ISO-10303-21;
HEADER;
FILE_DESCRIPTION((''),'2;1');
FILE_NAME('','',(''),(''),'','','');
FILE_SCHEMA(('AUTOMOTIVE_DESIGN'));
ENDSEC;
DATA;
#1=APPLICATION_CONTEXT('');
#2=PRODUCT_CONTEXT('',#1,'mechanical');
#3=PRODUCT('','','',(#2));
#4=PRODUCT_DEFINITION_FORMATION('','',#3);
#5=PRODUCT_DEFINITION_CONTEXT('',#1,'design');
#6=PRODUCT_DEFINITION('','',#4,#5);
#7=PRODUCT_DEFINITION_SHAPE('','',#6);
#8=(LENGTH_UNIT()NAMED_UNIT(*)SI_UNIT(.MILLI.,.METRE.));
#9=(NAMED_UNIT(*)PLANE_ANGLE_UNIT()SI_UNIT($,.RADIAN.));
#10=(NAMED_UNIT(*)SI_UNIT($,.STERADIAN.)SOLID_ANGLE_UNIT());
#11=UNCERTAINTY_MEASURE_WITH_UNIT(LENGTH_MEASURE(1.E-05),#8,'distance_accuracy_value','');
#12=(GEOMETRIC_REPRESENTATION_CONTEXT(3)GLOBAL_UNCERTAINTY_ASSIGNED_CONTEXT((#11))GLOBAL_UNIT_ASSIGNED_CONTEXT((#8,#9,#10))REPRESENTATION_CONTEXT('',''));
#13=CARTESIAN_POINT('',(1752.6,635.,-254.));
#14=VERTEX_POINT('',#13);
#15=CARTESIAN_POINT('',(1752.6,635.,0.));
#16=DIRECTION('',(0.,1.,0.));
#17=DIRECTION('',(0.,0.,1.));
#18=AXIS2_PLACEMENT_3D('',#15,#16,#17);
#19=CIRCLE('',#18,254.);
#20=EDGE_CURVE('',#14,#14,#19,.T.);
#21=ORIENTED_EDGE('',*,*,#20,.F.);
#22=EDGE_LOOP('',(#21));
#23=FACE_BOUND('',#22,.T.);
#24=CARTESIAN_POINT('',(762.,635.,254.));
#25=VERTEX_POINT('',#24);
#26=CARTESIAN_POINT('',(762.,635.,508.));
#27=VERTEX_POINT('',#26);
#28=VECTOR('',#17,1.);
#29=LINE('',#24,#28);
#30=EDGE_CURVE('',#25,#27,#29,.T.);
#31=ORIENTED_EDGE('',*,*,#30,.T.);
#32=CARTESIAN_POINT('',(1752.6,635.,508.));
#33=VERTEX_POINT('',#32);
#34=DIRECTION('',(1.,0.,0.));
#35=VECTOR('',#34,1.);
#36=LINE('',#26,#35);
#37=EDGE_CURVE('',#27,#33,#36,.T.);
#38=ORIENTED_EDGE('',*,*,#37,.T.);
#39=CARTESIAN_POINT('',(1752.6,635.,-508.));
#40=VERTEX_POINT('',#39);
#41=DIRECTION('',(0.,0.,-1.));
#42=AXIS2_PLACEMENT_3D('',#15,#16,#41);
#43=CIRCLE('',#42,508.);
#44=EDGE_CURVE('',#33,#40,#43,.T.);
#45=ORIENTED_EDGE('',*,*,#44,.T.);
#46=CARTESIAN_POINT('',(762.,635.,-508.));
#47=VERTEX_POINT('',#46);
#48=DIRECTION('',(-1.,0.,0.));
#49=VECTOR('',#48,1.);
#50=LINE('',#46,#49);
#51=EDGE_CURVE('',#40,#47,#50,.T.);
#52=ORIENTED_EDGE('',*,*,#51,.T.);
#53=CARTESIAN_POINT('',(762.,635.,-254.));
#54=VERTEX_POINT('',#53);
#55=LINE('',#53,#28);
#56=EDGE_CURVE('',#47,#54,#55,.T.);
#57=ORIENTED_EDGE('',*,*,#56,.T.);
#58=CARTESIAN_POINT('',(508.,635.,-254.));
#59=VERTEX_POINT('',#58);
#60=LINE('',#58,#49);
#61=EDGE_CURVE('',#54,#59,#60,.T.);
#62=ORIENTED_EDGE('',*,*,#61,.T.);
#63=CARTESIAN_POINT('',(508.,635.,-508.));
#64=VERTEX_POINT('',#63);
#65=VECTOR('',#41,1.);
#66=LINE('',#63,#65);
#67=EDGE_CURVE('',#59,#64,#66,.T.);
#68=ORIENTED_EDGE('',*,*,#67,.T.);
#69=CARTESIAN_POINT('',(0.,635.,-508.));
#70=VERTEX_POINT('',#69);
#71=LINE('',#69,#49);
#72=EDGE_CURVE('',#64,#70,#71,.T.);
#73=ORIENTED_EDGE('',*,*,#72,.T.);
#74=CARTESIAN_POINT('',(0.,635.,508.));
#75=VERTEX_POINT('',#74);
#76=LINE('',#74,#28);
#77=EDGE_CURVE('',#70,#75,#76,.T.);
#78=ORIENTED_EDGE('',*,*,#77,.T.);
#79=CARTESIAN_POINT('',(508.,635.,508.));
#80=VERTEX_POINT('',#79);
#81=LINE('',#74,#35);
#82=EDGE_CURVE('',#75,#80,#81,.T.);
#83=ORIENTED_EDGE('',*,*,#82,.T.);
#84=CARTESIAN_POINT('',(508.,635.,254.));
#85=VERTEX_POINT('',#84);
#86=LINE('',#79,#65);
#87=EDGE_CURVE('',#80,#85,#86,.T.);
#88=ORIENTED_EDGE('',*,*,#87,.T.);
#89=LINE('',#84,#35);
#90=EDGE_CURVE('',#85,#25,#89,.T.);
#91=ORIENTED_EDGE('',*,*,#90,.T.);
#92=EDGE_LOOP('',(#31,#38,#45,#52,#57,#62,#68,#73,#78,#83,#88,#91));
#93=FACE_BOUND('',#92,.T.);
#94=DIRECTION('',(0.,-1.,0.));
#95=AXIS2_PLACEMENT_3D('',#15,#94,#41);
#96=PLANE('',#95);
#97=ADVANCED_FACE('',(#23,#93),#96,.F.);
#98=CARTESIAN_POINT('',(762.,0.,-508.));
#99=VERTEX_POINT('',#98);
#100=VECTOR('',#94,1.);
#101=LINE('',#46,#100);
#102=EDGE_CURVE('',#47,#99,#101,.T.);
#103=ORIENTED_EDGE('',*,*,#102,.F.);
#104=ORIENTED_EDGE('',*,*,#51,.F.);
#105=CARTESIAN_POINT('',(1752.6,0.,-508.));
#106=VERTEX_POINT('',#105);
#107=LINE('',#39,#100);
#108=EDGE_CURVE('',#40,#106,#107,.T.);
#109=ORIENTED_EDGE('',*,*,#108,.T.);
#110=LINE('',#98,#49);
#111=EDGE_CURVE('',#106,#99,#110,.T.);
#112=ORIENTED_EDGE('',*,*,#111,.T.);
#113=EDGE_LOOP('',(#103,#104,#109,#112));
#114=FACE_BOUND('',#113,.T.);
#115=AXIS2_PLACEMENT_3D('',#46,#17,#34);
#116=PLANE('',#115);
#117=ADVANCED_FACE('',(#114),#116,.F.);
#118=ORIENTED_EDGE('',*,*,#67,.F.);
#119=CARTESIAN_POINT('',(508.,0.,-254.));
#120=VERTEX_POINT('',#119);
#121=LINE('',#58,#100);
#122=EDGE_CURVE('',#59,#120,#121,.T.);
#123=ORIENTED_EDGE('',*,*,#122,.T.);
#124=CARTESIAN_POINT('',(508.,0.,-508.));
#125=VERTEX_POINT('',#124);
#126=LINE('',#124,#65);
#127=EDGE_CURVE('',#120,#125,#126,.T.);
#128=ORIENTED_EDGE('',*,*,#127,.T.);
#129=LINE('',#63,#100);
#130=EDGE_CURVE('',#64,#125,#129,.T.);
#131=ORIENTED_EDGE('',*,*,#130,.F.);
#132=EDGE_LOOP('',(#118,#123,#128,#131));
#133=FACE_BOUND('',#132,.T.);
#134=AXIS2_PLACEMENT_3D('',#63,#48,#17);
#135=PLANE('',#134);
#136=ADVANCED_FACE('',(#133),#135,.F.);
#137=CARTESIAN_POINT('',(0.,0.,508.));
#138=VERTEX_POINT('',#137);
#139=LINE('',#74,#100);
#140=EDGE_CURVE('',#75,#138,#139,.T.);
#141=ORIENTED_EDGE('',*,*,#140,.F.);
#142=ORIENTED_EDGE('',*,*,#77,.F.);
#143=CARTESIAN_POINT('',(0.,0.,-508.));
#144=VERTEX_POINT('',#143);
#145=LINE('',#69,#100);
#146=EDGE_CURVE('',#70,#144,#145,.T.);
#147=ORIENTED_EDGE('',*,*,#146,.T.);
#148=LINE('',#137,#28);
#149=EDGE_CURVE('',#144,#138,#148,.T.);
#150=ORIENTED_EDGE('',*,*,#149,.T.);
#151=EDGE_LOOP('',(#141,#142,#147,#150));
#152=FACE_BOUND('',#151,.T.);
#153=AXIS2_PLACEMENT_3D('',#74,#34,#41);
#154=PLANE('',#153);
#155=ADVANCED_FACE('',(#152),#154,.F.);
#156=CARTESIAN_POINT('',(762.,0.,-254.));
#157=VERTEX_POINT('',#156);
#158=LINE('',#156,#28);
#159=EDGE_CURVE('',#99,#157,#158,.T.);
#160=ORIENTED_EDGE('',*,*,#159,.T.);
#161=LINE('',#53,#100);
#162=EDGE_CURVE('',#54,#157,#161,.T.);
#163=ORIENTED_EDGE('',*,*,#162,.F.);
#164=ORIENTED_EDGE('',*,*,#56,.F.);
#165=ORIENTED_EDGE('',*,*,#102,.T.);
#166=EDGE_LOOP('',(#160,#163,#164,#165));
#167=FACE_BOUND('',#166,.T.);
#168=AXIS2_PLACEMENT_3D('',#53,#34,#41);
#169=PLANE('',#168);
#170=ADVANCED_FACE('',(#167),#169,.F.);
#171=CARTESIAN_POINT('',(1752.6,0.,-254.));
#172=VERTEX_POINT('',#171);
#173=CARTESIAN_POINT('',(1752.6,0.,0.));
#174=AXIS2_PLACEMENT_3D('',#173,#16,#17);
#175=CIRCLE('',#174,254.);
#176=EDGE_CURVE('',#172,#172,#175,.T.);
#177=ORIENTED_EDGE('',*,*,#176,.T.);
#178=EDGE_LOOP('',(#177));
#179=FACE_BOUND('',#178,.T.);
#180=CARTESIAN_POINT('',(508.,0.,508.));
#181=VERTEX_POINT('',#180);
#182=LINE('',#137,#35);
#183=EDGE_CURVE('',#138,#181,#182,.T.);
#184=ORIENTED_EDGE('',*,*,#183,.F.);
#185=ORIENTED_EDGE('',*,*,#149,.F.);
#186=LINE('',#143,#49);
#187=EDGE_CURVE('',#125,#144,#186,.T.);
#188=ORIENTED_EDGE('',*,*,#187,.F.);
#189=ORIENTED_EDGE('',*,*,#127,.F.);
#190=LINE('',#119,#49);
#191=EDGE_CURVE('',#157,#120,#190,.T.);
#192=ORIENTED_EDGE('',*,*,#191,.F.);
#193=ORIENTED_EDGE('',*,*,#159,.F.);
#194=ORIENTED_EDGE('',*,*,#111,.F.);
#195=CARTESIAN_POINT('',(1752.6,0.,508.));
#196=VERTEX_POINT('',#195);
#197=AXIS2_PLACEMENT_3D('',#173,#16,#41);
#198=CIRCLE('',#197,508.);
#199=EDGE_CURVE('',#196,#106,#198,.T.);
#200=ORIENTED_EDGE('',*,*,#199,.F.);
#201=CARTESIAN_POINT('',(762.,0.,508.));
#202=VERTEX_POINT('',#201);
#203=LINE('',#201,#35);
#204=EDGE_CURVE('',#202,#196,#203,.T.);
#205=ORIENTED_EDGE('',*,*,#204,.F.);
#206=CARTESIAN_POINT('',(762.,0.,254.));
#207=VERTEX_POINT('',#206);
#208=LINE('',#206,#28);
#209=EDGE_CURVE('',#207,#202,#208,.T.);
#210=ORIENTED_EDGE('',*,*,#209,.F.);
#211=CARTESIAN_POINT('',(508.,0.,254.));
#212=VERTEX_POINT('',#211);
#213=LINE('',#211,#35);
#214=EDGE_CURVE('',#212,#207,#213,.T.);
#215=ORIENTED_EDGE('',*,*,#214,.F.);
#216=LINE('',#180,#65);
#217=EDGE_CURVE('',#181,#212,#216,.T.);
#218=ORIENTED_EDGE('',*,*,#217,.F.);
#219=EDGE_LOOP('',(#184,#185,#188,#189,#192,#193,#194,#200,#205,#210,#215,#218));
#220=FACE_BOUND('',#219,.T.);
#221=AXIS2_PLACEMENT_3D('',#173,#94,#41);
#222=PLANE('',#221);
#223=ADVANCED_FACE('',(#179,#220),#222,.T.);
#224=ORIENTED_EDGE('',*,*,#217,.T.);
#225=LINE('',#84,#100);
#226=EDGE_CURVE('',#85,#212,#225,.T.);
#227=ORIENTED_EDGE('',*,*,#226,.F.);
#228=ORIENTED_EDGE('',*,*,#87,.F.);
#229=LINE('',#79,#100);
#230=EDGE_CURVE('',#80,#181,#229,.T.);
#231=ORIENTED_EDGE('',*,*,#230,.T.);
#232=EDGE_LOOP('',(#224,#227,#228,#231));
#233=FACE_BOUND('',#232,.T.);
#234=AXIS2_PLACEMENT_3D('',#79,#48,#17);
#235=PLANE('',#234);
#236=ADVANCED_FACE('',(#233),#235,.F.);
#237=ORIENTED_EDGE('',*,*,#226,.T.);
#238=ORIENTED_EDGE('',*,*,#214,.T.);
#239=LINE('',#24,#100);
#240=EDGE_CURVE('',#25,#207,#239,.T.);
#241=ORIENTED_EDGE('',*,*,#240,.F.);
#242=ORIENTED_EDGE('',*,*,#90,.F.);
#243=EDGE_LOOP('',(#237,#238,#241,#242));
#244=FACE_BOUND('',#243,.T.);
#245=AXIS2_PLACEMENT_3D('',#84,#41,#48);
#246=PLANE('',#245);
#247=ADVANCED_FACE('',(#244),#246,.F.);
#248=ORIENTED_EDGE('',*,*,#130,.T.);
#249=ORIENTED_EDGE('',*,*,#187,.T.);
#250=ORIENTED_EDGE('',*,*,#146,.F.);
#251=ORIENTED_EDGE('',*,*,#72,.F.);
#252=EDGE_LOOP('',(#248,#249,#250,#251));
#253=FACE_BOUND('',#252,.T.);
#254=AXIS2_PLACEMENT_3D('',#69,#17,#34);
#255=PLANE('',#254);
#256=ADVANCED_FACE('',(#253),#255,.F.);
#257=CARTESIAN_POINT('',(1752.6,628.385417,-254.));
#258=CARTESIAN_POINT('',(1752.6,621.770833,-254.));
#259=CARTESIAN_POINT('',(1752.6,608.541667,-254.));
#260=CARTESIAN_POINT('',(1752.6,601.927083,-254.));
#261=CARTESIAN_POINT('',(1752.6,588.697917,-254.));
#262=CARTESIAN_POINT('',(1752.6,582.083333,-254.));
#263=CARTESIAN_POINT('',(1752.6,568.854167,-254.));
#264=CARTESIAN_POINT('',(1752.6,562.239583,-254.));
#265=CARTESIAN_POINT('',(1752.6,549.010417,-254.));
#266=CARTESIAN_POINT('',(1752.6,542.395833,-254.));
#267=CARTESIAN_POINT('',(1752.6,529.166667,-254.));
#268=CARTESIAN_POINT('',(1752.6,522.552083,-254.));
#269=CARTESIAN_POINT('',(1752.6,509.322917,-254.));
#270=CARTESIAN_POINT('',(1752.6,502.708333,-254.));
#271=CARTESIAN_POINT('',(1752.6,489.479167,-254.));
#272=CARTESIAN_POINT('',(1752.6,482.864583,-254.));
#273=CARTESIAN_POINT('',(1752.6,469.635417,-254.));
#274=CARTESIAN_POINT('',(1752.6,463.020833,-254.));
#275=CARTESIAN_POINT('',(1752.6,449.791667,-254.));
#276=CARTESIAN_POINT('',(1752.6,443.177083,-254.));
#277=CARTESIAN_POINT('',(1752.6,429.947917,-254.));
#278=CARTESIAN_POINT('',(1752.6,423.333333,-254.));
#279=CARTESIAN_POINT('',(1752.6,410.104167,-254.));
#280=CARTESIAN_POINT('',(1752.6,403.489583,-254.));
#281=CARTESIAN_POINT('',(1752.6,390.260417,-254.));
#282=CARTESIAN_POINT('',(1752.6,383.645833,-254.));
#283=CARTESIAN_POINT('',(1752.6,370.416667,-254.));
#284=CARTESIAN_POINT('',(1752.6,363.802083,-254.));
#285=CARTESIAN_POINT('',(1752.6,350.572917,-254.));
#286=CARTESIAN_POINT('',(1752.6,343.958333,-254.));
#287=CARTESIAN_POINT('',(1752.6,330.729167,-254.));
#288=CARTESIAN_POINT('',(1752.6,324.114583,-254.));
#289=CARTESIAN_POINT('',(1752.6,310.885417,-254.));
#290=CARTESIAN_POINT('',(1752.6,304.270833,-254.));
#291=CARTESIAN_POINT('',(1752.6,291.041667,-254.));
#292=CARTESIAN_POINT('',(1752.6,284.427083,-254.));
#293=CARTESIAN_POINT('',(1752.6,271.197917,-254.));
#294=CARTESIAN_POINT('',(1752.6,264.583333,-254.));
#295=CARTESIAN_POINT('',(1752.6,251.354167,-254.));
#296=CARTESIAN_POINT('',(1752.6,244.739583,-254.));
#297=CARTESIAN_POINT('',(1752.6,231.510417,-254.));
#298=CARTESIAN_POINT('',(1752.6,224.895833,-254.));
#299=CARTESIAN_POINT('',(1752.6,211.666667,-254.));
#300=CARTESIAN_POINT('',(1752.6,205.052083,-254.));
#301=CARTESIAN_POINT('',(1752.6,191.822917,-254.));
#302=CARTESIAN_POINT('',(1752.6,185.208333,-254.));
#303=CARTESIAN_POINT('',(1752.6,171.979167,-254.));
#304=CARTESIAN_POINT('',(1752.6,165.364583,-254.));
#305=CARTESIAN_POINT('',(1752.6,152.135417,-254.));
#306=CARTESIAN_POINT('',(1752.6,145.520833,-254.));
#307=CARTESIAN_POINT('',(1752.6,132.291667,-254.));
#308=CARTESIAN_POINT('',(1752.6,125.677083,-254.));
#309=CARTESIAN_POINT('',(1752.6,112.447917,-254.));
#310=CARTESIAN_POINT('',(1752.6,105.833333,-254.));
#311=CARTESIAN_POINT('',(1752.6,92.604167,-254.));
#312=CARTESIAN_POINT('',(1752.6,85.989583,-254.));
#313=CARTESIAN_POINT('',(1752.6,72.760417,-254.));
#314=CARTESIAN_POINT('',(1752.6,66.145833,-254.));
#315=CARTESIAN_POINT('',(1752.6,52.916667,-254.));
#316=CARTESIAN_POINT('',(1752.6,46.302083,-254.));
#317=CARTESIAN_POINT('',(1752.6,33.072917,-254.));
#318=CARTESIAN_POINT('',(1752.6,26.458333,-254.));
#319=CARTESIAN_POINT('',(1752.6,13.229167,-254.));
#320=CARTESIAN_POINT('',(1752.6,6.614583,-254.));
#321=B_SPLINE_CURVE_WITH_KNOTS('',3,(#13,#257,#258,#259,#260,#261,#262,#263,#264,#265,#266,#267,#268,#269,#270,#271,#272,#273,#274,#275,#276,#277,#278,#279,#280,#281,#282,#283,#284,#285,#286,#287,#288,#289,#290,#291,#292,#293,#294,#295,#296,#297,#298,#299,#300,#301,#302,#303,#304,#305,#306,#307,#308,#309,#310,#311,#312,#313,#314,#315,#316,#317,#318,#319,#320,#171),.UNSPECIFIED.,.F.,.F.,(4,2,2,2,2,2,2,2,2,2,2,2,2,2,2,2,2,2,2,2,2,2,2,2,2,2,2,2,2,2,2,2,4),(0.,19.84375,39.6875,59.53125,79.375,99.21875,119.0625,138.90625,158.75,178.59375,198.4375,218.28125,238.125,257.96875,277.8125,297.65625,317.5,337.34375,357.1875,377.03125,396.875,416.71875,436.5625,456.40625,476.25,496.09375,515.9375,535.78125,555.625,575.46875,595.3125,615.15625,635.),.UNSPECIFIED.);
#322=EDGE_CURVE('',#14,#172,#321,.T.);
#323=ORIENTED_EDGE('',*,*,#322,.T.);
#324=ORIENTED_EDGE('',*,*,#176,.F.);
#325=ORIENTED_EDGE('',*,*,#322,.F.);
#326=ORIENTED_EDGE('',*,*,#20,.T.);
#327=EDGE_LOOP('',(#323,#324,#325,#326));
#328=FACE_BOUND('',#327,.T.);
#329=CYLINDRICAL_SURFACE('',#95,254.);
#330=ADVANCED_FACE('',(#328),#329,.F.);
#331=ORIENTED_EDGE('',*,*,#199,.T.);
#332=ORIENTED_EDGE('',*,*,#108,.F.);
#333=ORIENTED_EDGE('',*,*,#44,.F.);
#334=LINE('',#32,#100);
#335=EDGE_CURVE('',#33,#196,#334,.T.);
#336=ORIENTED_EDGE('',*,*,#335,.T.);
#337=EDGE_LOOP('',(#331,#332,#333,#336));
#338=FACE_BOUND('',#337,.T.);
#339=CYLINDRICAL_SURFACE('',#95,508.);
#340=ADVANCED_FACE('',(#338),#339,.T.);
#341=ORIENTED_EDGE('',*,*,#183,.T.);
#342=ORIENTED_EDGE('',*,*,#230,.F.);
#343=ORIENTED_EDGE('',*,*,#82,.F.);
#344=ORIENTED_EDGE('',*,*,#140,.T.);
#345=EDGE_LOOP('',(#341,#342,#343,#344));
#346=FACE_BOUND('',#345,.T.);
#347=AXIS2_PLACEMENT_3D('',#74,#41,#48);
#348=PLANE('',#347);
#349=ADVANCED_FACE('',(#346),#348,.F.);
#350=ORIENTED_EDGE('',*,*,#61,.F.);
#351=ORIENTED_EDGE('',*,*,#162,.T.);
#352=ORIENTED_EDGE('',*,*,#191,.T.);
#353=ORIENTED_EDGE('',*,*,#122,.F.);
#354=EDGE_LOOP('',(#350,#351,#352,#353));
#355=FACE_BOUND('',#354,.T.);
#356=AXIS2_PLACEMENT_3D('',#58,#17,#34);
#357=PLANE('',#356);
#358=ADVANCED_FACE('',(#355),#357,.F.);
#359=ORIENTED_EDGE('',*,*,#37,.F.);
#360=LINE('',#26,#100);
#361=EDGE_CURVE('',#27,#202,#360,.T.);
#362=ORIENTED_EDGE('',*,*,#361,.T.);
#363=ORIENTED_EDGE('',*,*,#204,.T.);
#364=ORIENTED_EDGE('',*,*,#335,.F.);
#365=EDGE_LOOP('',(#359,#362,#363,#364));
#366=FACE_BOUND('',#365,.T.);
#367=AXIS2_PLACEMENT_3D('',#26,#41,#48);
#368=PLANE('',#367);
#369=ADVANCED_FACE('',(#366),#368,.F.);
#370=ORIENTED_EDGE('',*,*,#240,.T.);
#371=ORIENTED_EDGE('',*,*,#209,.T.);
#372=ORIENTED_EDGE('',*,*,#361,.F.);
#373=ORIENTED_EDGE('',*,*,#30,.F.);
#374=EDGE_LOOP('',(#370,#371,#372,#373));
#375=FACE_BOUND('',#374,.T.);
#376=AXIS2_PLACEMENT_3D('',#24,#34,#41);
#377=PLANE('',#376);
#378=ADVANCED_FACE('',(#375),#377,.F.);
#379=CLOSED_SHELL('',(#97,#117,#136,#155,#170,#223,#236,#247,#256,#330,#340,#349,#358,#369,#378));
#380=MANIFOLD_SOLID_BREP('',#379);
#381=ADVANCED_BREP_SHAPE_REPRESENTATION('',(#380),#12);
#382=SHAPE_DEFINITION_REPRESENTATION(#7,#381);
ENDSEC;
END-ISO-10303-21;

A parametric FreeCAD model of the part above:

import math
import FreeCAD as App
import Part
import Sketcher
Q = App.Units.Quantity

doc = App.newDocument("Part")
params = doc.addObject("Spreadsheet::Sheet", "Params")
for row, (alias, value) in enumerate([
    ("sketch1_diameter", "20 in"),
    ("sketch1_radius", "20 in"),
    ("sketch1_width", "20 in"),
    ("sketch1_width2", "10 in"),
    ("sketch1_width3", "39 in"),
    ("pad1_length", "25 in"),
], start=1):
    params.set(f"A{row}", alias)
    params.set(f"B{row}", "=" + value)
    params.setAlias(f"B{row}", alias)

body = doc.addObject("PartDesign::Body", "Body")

sketch1 = body.newObject("Sketcher::SketchObject", "Sketch")
sketch1.AttachmentSupport = (doc.getObject("XZ_Plane"), [""])
sketch1.MapMode = "FlatFace"
sketch1.addGeometry(Part.LineSegment(App.Vector(0, -508, 0), App.Vector(0, 508, 0)), False)
sketch1.addGeometry(Part.LineSegment(App.Vector(0, 508, 0), App.Vector(508, 508, 0)), False)
sketch1.addGeometry(Part.LineSegment(App.Vector(508, 508, 0), App.Vector(508, 254, 0)), False)
sketch1.addGeometry(Part.LineSegment(App.Vector(508, 254, 0), App.Vector(762, 254, 0)), False)
sketch1.addGeometry(Part.LineSegment(App.Vector(762, 254, 0), App.Vector(762, 508, 0)), False)
sketch1.addGeometry(Part.LineSegment(App.Vector(762, 508, 0), App.Vector(1752.6, 508, 0)), False)
sketch1.addGeometry(Part.ArcOfCircle(Part.Circle(App.Vector(1752.6, 0, 0), App.Vector(0, 0, 1), 508), math.radians(-90), math.radians(90)), False)
sketch1.addGeometry(Part.LineSegment(App.Vector(1752.6, -508, 0), App.Vector(762, -508, 0)), False)
sketch1.addGeometry(Part.LineSegment(App.Vector(762, -508, 0), App.Vector(762, -254, 0)), False)
sketch1.addGeometry(Part.LineSegment(App.Vector(762, -254, 0), App.Vector(508, -254, 0)), False)
sketch1.addGeometry(Part.LineSegment(App.Vector(508, -254, 0), App.Vector(508, -508, 0)), False)
sketch1.addGeometry(Part.LineSegment(App.Vector(508, -508, 0), App.Vector(0, -508, 0)), False)
sketch1.addGeometry(Part.Circle(App.Vector(1752.6, 0, 0), App.Vector(0, 0, 1), 254), False)
sketch1.addConstraint(Sketcher.Constraint("Coincident", 0, 2, 1, 1))
sketch1.addConstraint(Sketcher.Constraint("Coincident", 1, 2, 2, 1))
sketch1.addConstraint(Sketcher.Constraint("Coincident", 2, 2, 3, 1))
sketch1.addConstraint(Sketcher.Constraint("Coincident", 3, 2, 4, 1))
sketch1.addConstraint(Sketcher.Constraint("Coincident", 4, 2, 5, 1))
sketch1.addConstraint(Sketcher.Constraint("Tangent", 5, 2, 6, 2))
sketch1.addConstraint(Sketcher.Constraint("Tangent", 6, 1, 7, 1))
sketch1.addConstraint(Sketcher.Constraint("Coincident", 7, 2, 8, 1))
sketch1.addConstraint(Sketcher.Constraint("Coincident", 8, 2, 9, 1))
sketch1.addConstraint(Sketcher.Constraint("Coincident", 9, 2, 10, 1))
sketch1.addConstraint(Sketcher.Constraint("Coincident", 10, 2, 11, 1))
sketch1.addConstraint(Sketcher.Constraint("Coincident", 11, 2, 0, 1))
sketch1.addConstraint(Sketcher.Constraint("Vertical", 0))
sketch1.addConstraint(Sketcher.Constraint("Horizontal", 1))
sketch1.addConstraint(Sketcher.Constraint("Vertical", 2))
sketch1.addConstraint(Sketcher.Constraint("Horizontal", 3))
sketch1.addConstraint(Sketcher.Constraint("Vertical", 4))
sketch1.addConstraint(Sketcher.Constraint("Horizontal", 5))
sketch1.addConstraint(Sketcher.Constraint("Horizontal", 7))
sketch1.addConstraint(Sketcher.Constraint("Vertical", 8))
sketch1.addConstraint(Sketcher.Constraint("Horizontal", 9))
sketch1.addConstraint(Sketcher.Constraint("Vertical", 10))
sketch1.addConstraint(Sketcher.Constraint("Horizontal", 11))
sketch1.addConstraint(Sketcher.Constraint("Coincident", 12, 3, 6, 3))
sketch1.addConstraint(Sketcher.Constraint("Symmetric", 0, 2, 11, 2, -1, 1))
sketch1.addConstraint(Sketcher.Constraint("Symmetric", 4, 2, 7, 2, -1))
sketch1.addConstraint(Sketcher.Constraint("Symmetric", 2, 2, 9, 2, -1))
sketch1.addConstraint(Sketcher.Constraint("Horizontal", 1, 2, 4, 2))
sketch1.addConstraint(Sketcher.Constraint("Equal", 9, 2))
sketch1.addConstraint(Sketcher.Constraint("Diameter", 12, Q("20 in")))
sketch1.addConstraint(Sketcher.Constraint("Radius", 6, Q("20 in")))
sketch1.addConstraint(Sketcher.Constraint("DistanceX", 1, 1, 1, 2, Q("20 in")))
sketch1.addConstraint(Sketcher.Constraint("DistanceX", 3, 1, 3, 2, Q("10 in")))
sketch1.addConstraint(Sketcher.Constraint("DistanceX", 5, 1, 5, 2, Q("39 in")))
sketch1.setExpression("Constraints[29]", "Params.sketch1_diameter")
sketch1.setExpression("Constraints[30]", "Params.sketch1_radius")
sketch1.setExpression("Constraints[31]", "Params.sketch1_width")
sketch1.setExpression("Constraints[32]", "Params.sketch1_width2")
sketch1.setExpression("Constraints[33]", "Params.sketch1_width3")
pad1 = body.newObject("PartDesign::Pad", "Pad")
pad1.Profile = sketch1
pad1.setExpression("Length", "Params.pad1_length")
pad1.Reversed = True

doc.recompute()
